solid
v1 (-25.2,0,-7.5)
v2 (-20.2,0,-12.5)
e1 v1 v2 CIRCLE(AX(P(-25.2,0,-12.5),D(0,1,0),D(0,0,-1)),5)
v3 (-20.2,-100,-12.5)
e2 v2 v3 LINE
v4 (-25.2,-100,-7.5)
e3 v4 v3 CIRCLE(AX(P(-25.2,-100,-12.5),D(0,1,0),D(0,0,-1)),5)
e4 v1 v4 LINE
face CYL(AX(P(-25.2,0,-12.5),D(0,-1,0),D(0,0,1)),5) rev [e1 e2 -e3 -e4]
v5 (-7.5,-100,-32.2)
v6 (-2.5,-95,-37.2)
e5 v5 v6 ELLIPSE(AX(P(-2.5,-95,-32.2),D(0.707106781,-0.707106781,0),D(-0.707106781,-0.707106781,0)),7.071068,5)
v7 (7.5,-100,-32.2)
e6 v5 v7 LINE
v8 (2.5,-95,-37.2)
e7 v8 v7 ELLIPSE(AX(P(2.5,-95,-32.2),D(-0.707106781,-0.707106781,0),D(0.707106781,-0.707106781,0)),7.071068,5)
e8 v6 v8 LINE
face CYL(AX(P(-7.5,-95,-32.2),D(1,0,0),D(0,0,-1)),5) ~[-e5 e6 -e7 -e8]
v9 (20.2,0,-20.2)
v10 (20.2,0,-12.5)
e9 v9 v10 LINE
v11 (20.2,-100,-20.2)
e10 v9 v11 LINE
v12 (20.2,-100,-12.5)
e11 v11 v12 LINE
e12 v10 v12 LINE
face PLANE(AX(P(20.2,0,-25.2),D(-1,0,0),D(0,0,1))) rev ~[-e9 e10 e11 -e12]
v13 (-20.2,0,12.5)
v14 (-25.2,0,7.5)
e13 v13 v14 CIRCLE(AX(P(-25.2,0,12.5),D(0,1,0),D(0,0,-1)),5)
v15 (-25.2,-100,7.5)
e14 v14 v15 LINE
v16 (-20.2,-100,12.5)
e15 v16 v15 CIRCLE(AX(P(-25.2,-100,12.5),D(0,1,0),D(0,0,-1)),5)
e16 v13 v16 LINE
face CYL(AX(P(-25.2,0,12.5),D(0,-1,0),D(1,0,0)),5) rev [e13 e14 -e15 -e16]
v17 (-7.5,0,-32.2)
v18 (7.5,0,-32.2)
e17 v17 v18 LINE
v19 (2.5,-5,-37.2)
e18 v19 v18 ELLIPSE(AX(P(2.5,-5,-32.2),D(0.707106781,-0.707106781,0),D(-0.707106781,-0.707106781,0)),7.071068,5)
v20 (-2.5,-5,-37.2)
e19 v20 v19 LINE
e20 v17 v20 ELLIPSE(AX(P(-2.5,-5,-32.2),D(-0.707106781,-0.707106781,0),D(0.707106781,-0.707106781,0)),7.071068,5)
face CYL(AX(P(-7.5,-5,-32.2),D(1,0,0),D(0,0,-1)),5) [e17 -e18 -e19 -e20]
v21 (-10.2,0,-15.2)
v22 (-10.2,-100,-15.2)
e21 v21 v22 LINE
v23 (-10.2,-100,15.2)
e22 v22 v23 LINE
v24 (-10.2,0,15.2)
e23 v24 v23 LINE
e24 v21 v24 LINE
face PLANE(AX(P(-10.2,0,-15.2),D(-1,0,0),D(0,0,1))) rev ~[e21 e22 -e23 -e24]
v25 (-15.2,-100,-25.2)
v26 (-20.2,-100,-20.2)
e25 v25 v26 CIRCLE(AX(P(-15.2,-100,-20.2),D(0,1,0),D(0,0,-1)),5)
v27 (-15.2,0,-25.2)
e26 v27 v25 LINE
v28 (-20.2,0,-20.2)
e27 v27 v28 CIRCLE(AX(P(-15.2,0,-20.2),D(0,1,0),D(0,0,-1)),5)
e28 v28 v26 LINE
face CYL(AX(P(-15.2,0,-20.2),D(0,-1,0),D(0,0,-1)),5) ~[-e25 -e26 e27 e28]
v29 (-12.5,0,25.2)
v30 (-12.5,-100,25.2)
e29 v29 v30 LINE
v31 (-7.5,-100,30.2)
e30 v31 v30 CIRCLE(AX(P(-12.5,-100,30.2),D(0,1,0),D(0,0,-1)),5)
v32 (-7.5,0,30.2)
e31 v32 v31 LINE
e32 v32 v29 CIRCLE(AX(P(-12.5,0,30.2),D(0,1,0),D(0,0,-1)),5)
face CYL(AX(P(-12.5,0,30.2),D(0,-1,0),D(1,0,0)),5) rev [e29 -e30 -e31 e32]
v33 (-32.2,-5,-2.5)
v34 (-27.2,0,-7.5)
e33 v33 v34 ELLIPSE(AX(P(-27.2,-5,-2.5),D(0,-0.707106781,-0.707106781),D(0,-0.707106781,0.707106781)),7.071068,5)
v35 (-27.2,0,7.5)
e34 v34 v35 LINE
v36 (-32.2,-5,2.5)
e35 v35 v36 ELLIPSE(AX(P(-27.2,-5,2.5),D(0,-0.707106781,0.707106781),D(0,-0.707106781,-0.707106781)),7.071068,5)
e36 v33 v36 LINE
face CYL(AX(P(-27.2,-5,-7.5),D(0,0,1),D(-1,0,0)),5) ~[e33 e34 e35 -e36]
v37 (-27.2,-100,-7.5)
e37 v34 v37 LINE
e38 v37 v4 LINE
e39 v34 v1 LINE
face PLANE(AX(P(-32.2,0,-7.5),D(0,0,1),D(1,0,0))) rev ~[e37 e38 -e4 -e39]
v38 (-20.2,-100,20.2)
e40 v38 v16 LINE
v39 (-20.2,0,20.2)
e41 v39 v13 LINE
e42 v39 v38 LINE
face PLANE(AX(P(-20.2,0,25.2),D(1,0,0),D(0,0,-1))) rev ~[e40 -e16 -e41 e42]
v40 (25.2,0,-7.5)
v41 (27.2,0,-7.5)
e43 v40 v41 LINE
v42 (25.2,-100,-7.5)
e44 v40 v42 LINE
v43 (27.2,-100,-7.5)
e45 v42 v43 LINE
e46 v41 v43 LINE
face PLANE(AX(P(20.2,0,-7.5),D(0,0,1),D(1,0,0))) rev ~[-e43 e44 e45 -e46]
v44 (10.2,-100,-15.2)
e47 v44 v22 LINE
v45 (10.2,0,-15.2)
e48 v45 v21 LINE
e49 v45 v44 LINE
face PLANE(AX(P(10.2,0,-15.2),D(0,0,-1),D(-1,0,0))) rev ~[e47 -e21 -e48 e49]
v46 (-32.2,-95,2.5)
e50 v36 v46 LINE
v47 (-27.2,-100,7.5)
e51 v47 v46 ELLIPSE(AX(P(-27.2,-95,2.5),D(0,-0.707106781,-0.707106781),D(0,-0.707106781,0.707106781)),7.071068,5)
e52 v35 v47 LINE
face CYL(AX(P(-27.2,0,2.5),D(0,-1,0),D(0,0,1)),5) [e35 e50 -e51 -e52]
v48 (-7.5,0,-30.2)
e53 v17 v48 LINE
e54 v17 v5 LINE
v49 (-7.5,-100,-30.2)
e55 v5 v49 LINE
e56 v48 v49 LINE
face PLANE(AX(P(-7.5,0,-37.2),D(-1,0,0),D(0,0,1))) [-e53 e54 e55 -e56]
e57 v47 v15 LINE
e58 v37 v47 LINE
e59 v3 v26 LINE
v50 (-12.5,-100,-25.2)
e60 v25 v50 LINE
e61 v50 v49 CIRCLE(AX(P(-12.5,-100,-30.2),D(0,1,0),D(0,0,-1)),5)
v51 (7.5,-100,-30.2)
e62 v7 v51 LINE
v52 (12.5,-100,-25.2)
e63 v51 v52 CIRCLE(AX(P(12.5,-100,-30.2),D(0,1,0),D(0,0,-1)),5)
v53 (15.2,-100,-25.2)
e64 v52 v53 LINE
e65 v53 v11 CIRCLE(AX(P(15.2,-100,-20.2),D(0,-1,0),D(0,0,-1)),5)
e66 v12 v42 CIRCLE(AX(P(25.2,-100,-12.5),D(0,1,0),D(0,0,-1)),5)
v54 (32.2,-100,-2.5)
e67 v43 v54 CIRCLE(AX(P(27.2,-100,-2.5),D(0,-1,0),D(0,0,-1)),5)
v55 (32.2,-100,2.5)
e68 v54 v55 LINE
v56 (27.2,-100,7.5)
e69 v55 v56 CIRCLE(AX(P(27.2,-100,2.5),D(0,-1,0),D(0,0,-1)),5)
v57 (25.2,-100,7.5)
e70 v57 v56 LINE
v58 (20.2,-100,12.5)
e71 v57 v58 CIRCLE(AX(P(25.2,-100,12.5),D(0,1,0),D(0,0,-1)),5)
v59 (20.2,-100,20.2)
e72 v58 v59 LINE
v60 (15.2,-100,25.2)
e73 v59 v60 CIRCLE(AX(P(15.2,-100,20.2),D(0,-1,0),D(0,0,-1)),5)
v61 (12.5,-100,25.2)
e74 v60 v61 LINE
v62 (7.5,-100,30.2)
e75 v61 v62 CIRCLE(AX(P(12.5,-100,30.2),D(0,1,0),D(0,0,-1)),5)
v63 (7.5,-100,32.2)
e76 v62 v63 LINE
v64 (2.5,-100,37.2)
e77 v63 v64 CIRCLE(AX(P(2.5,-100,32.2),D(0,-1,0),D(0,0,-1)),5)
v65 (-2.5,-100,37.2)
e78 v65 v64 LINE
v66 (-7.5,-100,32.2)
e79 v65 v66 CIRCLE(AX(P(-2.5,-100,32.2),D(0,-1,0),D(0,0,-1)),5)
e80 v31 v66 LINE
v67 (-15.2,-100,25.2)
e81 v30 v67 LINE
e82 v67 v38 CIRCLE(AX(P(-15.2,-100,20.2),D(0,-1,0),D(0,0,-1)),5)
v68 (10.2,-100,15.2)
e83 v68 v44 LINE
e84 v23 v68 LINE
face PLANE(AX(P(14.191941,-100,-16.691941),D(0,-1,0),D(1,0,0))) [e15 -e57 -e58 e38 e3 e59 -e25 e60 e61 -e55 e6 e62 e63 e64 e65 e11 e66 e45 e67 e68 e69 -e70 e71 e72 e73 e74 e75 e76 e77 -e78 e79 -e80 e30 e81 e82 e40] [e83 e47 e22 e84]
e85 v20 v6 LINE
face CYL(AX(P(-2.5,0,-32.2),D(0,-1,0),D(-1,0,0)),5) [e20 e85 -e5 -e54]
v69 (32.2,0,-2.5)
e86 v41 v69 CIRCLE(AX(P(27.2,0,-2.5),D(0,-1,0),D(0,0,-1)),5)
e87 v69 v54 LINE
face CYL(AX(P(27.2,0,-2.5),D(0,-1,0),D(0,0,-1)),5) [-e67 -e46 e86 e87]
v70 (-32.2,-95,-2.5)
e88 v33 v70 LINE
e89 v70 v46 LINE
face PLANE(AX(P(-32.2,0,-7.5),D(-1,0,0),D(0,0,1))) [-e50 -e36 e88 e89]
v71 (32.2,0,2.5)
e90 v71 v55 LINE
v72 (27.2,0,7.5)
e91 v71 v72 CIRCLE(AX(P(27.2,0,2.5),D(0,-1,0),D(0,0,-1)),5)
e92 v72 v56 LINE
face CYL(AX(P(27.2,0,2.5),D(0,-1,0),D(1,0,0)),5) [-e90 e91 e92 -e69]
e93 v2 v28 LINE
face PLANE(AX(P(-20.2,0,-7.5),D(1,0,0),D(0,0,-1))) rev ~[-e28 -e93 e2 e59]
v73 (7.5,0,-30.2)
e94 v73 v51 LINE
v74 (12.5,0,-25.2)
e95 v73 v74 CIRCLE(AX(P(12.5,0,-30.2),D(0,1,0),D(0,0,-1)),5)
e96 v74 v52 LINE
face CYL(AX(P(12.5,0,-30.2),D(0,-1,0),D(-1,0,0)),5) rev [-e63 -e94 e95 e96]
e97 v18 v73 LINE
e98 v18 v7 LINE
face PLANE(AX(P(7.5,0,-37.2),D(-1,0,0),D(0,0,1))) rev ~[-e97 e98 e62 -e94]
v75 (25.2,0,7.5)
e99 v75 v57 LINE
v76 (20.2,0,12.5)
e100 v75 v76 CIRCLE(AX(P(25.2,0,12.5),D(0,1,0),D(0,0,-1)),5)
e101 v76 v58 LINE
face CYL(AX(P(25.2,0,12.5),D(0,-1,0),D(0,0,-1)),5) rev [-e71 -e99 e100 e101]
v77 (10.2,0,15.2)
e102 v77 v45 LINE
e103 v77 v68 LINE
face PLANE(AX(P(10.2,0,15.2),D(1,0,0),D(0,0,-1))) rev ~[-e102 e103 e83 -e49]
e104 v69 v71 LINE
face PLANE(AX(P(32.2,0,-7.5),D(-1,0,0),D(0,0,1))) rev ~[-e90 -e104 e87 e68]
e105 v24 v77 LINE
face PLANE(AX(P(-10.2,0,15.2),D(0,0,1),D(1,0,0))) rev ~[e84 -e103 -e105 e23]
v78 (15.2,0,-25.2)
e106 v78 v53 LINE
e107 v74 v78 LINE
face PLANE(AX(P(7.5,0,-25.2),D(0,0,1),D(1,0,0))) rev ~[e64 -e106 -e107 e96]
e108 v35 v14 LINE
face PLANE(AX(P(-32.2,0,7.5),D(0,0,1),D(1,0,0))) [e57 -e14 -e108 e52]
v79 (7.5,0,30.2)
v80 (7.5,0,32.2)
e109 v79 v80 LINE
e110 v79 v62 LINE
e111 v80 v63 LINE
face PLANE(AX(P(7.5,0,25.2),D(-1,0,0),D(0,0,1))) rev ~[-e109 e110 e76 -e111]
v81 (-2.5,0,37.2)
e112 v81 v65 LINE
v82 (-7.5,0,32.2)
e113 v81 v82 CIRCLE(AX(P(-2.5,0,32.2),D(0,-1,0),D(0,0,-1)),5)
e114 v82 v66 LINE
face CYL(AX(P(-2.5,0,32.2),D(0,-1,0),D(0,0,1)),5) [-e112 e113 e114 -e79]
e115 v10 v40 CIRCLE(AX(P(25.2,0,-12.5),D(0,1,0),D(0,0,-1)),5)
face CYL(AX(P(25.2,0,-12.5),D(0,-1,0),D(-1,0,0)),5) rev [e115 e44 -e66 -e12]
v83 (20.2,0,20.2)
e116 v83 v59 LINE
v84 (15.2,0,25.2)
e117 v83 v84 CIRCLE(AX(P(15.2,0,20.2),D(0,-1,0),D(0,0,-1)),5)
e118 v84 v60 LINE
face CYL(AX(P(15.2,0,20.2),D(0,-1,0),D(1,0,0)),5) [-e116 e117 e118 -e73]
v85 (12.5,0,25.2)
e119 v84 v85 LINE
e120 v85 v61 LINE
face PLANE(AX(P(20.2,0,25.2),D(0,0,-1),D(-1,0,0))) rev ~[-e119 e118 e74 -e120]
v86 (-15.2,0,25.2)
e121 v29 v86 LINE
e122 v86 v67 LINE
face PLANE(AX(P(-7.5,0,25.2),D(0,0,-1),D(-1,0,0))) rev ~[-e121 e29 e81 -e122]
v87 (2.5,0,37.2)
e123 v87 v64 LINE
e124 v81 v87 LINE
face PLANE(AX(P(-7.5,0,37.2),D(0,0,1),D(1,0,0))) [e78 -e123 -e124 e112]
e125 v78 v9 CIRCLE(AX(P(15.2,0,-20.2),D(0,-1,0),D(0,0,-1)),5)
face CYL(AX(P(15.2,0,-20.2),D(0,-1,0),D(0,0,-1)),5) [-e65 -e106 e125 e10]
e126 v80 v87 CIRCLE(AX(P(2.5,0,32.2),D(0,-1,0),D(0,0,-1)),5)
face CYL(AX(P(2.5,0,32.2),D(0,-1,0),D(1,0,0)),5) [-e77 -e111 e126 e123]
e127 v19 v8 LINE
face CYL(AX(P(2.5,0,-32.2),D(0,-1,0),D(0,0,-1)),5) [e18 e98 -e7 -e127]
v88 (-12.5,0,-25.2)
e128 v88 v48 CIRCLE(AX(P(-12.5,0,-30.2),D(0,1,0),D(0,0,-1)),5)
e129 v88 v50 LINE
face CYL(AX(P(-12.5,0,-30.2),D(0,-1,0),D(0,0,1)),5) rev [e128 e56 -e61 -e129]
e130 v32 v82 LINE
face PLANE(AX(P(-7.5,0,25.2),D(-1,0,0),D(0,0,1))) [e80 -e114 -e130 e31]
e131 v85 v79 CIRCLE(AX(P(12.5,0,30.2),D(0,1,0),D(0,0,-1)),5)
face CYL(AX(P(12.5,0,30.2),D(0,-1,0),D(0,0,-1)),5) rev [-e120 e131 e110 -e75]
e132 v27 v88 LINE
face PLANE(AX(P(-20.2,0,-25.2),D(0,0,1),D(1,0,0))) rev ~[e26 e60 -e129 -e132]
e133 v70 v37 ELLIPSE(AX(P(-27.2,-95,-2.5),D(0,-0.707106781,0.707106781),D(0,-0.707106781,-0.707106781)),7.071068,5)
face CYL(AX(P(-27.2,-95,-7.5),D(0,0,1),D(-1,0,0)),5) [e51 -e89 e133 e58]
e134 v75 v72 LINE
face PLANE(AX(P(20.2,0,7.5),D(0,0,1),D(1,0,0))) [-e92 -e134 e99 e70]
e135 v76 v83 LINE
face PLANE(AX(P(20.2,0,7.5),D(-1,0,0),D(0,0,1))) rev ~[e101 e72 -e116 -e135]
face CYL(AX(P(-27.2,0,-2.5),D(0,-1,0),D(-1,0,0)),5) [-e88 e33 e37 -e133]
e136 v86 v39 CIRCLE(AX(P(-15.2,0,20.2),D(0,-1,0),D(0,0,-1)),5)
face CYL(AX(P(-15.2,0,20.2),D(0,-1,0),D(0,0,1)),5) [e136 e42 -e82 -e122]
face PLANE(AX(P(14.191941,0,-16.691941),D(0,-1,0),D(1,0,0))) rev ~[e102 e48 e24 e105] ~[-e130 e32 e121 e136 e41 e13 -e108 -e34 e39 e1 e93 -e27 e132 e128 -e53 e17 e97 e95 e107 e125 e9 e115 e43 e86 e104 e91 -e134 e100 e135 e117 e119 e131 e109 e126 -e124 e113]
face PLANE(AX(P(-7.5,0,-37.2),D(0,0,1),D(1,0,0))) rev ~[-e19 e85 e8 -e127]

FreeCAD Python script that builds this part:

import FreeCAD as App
import Part
import Sketcher

V = App.Vector


def edges_at(feature, points):
    """Names of the edges that pass closest to the given points."""
    edges = feature.Shape.Edges
    near = lambda p: min(range(len(edges)), key=lambda i: edges[i].distToShape(Part.Vertex(*p))[0])
    return sorted({f"Edge{near(p) + 1}" for p in points})

doc = App.newDocument("Part")
body = doc.addObject("PartDesign::Body", "Body")

# Sketch on XZ plane
sketch1 = body.newObject("Sketcher::SketchObject", "Sketch")
sketch1.AttachmentSupport = (doc.getObject("XZ_Plane"), [""])
sketch1.MapMode = "FlatFace"
sketch1.addGeometry(Part.LineSegment(V(-20, -25, 0), V(-8, -25, 0)), False)
sketch1.addGeometry(Part.LineSegment(V(-8, -25, 0), V(-8, -37, 0)), False)
sketch1.addGeometry(Part.LineSegment(V(-8, -37, 0), V(8, -37, 0)), False)
sketch1.addGeometry(Part.LineSegment(V(8, -37, 0), V(8, -25, 0)), False)
sketch1.addGeometry(Part.LineSegment(V(8, -25, 0), V(20, -25, 0)), False)
sketch1.addGeometry(Part.LineSegment(V(20, -25, 0), V(20, -8, 0)), False)
sketch1.addGeometry(Part.LineSegment(V(20, -8, 0), V(32, -8, 0)), False)
sketch1.addGeometry(Part.LineSegment(V(32, -8, 0), V(32, 8, 0)), False)
sketch1.addGeometry(Part.LineSegment(V(32, 8, 0), V(20, 8, 0)), False)
sketch1.addGeometry(Part.LineSegment(V(20, 8, 0), V(20, 25, 0)), False)
sketch1.addGeometry(Part.LineSegment(V(20, 25, 0), V(8, 25, 0)), False)
sketch1.addGeometry(Part.LineSegment(V(8, 25, 0), V(8, 37, 0)), False)
sketch1.addGeometry(Part.LineSegment(V(8, 37, 0), V(-8, 37, 0)), False)
sketch1.addGeometry(Part.LineSegment(V(-8, 37, 0), V(-8, 25, 0)), False)
sketch1.addGeometry(Part.LineSegment(V(-8, 25, 0), V(-20, 25, 0)), False)
sketch1.addGeometry(Part.LineSegment(V(-20, 25, 0), V(-20, 8, 0)), False)
sketch1.addGeometry(Part.LineSegment(V(-20, 8, 0), V(-32, 8, 0)), False)
sketch1.addGeometry(Part.LineSegment(V(-32, 8, 0), V(-32, -8, 0)), False)
sketch1.addGeometry(Part.LineSegment(V(-32, -8, 0), V(-20, -8, 0)), False)
sketch1.addGeometry(Part.LineSegment(V(-20, -8, 0), V(-20, -25, 0)), False)
sketch1.addGeometry(Part.LineSegment(V(10, -15, 0), V(-10, -15, 0)), False)
sketch1.addGeometry(Part.LineSegment(V(-10, -15, 0), V(-10, 15, 0)), False)
sketch1.addGeometry(Part.LineSegment(V(-10, 15, 0), V(10, 15, 0)), False)
sketch1.addGeometry(Part.LineSegment(V(10, 15, 0), V(10, -15, 0)), False)
sketch1.addConstraint(Sketcher.Constraint("Coincident", 0, 2, 1, 1))
sketch1.addConstraint(Sketcher.Constraint("Coincident", 1, 2, 2, 1))
sketch1.addConstraint(Sketcher.Constraint("Coincident", 2, 2, 3, 1))
sketch1.addConstraint(Sketcher.Constraint("Coincident", 3, 2, 4, 1))
sketch1.addConstraint(Sketcher.Constraint("Coincident", 4, 2, 5, 1))
sketch1.addConstraint(Sketcher.Constraint("Coincident", 5, 2, 6, 1))
sketch1.addConstraint(Sketcher.Constraint("Coincident", 6, 2, 7, 1))
sketch1.addConstraint(Sketcher.Constraint("Coincident", 7, 2, 8, 1))
sketch1.addConstraint(Sketcher.Constraint("Coincident", 8, 2, 9, 1))
sketch1.addConstraint(Sketcher.Constraint("Coincident", 9, 2, 10, 1))
sketch1.addConstraint(Sketcher.Constraint("Coincident", 10, 2, 11, 1))
sketch1.addConstraint(Sketcher.Constraint("Coincident", 11, 2, 12, 1))
sketch1.addConstraint(Sketcher.Constraint("Coincident", 12, 2, 13, 1))
sketch1.addConstraint(Sketcher.Constraint("Coincident", 13, 2, 14, 1))
sketch1.addConstraint(Sketcher.Constraint("Coincident", 14, 2, 15, 1))
sketch1.addConstraint(Sketcher.Constraint("Coincident", 15, 2, 16, 1))
sketch1.addConstraint(Sketcher.Constraint("Coincident", 16, 2, 17, 1))
sketch1.addConstraint(Sketcher.Constraint("Coincident", 17, 2, 18, 1))
sketch1.addConstraint(Sketcher.Constraint("Coincident", 18, 2, 19, 1))
sketch1.addConstraint(Sketcher.Constraint("Coincident", 19, 2, 0, 1))
sketch1.addConstraint(Sketcher.Constraint("Coincident", 20, 2, 21, 1))
sketch1.addConstraint(Sketcher.Constraint("Coincident", 21, 2, 22, 1))
sketch1.addConstraint(Sketcher.Constraint("Coincident", 22, 2, 23, 1))
sketch1.addConstraint(Sketcher.Constraint("Coincident", 23, 2, 20, 1))
sketch1.addConstraint(Sketcher.Constraint("Horizontal", 0))
sketch1.addConstraint(Sketcher.Constraint("Vertical", 1))
sketch1.addConstraint(Sketcher.Constraint("Horizontal", 2))
sketch1.addConstraint(Sketcher.Constraint("Vertical", 3))
sketch1.addConstraint(Sketcher.Constraint("Horizontal", 4))
sketch1.addConstraint(Sketcher.Constraint("Vertical", 5))
sketch1.addConstraint(Sketcher.Constraint("Horizontal", 6))
sketch1.addConstraint(Sketcher.Constraint("Vertical", 7))
sketch1.addConstraint(Sketcher.Constraint("Horizontal", 8))
sketch1.addConstraint(Sketcher.Constraint("Vertical", 9))
sketch1.addConstraint(Sketcher.Constraint("Horizontal", 10))
sketch1.addConstraint(Sketcher.Constraint("Vertical", 11))
sketch1.addConstraint(Sketcher.Constraint("Horizontal", 12))
sketch1.addConstraint(Sketcher.Constraint("Vertical", 13))
sketch1.addConstraint(Sketcher.Constraint("Horizontal", 14))
sketch1.addConstraint(Sketcher.Constraint("Vertical", 15))
sketch1.addConstraint(Sketcher.Constraint("Horizontal", 16))
sketch1.addConstraint(Sketcher.Constraint("Vertical", 17))
sketch1.addConstraint(Sketcher.Constraint("Horizontal", 18))
sketch1.addConstraint(Sketcher.Constraint("Vertical", 19))
sketch1.addConstraint(Sketcher.Constraint("Horizontal", 20))
sketch1.addConstraint(Sketcher.Constraint("Vertical", 21))
sketch1.addConstraint(Sketcher.Constraint("Horizontal", 22))
sketch1.addConstraint(Sketcher.Constraint("Vertical", 23))
sketch1.addConstraint(Sketcher.Constraint("Symmetric", 0, 2, 10, 2, -1, 1))
sketch1.addConstraint(Sketcher.Constraint("Symmetric", 2, 2, 12, 2, -1, 1))
sketch1.addConstraint(Sketcher.Constraint("Symmetric", 4, 2, 14, 2, -1, 1))
sketch1.addConstraint(Sketcher.Constraint("Symmetric", 6, 2, 16, 2, -1, 1))
sketch1.addConstraint(Sketcher.Constraint("Symmetric", 8, 2, 18, 2, -1, 1))
sketch1.addConstraint(Sketcher.Constraint("Symmetric", 20, 2, 22, 2, -1, 1))
sketch1.addConstraint(Sketcher.Constraint("Symmetric", 0, 2, 3, 2, -2))
sketch1.addConstraint(Sketcher.Constraint("Symmetric", 8, 2, 15, 2, -2))
sketch1.addConstraint(Sketcher.Constraint("Equal", 18, 1))
sketch1.addConstraint(Sketcher.Constraint("Equal", 12, 7))
sketch1.addConstraint(Sketcher.Constraint("DistanceX", 2, 1, 2, 2, 15.0))
sketch1.addConstraint(Sketcher.Constraint("DistanceX", 6, 1, 6, 2, 12.0))
sketch1.addConstraint(Sketcher.Constraint("DistanceX", 0, 1, 0, 2, 12.7))
sketch1.addConstraint(Sketcher.Constraint("DistanceX", 20, 2, 20, 1, 20.4))
sketch1.addConstraint(Sketcher.Constraint("DistanceY", 5, 1, 5, 2, 17.7))
sketch1.addConstraint(Sketcher.Constraint("DistanceY", 21, 1, 21, 2, 30.4))
pad1 = body.newObject("PartDesign::Pad", "Pad")
pad1.Profile = sketch1
pad1.Length = 100
doc.recompute()

fillet = body.newObject("PartDesign::Fillet", "Fillet")
fillet.Base = (pad1, edges_at(pad1, [
    (-20.2, -50, 25.2),
    (20.2, -50, 25.2),
    (20.2, -50, -25.2),
    (-20.2, -50, -25.2),
    (32.2, -50, 7.5),
    (32.2, -50, -7.5),
    (20.2, -50, 7.5),
    (20.2, -50, -7.5),
    (7.5, -50, 25.2),
    (7.5, -50, 37.2),
    (-7.5, -50, 37.2),
    (-7.5, -50, 25.2),
    (-20.2, -50, 7.5),
    (-32.2, -50, 7.5),
    (-32.2, -50, -7.5),
    (-32.2, 0, 0),
    (-32.2, -100, 0),
    (-20.2, -50, -7.5),
    (-7.5, -50, -25.2),
    (-7.5, -50, -37.2),
    (7.5, -50, -37.2),
    (0, 0, -37.2),
    (0, -100, -37.2),
    (7.5, -50, -25.2),
]))
fillet.Radius = 5

doc.recompute()
